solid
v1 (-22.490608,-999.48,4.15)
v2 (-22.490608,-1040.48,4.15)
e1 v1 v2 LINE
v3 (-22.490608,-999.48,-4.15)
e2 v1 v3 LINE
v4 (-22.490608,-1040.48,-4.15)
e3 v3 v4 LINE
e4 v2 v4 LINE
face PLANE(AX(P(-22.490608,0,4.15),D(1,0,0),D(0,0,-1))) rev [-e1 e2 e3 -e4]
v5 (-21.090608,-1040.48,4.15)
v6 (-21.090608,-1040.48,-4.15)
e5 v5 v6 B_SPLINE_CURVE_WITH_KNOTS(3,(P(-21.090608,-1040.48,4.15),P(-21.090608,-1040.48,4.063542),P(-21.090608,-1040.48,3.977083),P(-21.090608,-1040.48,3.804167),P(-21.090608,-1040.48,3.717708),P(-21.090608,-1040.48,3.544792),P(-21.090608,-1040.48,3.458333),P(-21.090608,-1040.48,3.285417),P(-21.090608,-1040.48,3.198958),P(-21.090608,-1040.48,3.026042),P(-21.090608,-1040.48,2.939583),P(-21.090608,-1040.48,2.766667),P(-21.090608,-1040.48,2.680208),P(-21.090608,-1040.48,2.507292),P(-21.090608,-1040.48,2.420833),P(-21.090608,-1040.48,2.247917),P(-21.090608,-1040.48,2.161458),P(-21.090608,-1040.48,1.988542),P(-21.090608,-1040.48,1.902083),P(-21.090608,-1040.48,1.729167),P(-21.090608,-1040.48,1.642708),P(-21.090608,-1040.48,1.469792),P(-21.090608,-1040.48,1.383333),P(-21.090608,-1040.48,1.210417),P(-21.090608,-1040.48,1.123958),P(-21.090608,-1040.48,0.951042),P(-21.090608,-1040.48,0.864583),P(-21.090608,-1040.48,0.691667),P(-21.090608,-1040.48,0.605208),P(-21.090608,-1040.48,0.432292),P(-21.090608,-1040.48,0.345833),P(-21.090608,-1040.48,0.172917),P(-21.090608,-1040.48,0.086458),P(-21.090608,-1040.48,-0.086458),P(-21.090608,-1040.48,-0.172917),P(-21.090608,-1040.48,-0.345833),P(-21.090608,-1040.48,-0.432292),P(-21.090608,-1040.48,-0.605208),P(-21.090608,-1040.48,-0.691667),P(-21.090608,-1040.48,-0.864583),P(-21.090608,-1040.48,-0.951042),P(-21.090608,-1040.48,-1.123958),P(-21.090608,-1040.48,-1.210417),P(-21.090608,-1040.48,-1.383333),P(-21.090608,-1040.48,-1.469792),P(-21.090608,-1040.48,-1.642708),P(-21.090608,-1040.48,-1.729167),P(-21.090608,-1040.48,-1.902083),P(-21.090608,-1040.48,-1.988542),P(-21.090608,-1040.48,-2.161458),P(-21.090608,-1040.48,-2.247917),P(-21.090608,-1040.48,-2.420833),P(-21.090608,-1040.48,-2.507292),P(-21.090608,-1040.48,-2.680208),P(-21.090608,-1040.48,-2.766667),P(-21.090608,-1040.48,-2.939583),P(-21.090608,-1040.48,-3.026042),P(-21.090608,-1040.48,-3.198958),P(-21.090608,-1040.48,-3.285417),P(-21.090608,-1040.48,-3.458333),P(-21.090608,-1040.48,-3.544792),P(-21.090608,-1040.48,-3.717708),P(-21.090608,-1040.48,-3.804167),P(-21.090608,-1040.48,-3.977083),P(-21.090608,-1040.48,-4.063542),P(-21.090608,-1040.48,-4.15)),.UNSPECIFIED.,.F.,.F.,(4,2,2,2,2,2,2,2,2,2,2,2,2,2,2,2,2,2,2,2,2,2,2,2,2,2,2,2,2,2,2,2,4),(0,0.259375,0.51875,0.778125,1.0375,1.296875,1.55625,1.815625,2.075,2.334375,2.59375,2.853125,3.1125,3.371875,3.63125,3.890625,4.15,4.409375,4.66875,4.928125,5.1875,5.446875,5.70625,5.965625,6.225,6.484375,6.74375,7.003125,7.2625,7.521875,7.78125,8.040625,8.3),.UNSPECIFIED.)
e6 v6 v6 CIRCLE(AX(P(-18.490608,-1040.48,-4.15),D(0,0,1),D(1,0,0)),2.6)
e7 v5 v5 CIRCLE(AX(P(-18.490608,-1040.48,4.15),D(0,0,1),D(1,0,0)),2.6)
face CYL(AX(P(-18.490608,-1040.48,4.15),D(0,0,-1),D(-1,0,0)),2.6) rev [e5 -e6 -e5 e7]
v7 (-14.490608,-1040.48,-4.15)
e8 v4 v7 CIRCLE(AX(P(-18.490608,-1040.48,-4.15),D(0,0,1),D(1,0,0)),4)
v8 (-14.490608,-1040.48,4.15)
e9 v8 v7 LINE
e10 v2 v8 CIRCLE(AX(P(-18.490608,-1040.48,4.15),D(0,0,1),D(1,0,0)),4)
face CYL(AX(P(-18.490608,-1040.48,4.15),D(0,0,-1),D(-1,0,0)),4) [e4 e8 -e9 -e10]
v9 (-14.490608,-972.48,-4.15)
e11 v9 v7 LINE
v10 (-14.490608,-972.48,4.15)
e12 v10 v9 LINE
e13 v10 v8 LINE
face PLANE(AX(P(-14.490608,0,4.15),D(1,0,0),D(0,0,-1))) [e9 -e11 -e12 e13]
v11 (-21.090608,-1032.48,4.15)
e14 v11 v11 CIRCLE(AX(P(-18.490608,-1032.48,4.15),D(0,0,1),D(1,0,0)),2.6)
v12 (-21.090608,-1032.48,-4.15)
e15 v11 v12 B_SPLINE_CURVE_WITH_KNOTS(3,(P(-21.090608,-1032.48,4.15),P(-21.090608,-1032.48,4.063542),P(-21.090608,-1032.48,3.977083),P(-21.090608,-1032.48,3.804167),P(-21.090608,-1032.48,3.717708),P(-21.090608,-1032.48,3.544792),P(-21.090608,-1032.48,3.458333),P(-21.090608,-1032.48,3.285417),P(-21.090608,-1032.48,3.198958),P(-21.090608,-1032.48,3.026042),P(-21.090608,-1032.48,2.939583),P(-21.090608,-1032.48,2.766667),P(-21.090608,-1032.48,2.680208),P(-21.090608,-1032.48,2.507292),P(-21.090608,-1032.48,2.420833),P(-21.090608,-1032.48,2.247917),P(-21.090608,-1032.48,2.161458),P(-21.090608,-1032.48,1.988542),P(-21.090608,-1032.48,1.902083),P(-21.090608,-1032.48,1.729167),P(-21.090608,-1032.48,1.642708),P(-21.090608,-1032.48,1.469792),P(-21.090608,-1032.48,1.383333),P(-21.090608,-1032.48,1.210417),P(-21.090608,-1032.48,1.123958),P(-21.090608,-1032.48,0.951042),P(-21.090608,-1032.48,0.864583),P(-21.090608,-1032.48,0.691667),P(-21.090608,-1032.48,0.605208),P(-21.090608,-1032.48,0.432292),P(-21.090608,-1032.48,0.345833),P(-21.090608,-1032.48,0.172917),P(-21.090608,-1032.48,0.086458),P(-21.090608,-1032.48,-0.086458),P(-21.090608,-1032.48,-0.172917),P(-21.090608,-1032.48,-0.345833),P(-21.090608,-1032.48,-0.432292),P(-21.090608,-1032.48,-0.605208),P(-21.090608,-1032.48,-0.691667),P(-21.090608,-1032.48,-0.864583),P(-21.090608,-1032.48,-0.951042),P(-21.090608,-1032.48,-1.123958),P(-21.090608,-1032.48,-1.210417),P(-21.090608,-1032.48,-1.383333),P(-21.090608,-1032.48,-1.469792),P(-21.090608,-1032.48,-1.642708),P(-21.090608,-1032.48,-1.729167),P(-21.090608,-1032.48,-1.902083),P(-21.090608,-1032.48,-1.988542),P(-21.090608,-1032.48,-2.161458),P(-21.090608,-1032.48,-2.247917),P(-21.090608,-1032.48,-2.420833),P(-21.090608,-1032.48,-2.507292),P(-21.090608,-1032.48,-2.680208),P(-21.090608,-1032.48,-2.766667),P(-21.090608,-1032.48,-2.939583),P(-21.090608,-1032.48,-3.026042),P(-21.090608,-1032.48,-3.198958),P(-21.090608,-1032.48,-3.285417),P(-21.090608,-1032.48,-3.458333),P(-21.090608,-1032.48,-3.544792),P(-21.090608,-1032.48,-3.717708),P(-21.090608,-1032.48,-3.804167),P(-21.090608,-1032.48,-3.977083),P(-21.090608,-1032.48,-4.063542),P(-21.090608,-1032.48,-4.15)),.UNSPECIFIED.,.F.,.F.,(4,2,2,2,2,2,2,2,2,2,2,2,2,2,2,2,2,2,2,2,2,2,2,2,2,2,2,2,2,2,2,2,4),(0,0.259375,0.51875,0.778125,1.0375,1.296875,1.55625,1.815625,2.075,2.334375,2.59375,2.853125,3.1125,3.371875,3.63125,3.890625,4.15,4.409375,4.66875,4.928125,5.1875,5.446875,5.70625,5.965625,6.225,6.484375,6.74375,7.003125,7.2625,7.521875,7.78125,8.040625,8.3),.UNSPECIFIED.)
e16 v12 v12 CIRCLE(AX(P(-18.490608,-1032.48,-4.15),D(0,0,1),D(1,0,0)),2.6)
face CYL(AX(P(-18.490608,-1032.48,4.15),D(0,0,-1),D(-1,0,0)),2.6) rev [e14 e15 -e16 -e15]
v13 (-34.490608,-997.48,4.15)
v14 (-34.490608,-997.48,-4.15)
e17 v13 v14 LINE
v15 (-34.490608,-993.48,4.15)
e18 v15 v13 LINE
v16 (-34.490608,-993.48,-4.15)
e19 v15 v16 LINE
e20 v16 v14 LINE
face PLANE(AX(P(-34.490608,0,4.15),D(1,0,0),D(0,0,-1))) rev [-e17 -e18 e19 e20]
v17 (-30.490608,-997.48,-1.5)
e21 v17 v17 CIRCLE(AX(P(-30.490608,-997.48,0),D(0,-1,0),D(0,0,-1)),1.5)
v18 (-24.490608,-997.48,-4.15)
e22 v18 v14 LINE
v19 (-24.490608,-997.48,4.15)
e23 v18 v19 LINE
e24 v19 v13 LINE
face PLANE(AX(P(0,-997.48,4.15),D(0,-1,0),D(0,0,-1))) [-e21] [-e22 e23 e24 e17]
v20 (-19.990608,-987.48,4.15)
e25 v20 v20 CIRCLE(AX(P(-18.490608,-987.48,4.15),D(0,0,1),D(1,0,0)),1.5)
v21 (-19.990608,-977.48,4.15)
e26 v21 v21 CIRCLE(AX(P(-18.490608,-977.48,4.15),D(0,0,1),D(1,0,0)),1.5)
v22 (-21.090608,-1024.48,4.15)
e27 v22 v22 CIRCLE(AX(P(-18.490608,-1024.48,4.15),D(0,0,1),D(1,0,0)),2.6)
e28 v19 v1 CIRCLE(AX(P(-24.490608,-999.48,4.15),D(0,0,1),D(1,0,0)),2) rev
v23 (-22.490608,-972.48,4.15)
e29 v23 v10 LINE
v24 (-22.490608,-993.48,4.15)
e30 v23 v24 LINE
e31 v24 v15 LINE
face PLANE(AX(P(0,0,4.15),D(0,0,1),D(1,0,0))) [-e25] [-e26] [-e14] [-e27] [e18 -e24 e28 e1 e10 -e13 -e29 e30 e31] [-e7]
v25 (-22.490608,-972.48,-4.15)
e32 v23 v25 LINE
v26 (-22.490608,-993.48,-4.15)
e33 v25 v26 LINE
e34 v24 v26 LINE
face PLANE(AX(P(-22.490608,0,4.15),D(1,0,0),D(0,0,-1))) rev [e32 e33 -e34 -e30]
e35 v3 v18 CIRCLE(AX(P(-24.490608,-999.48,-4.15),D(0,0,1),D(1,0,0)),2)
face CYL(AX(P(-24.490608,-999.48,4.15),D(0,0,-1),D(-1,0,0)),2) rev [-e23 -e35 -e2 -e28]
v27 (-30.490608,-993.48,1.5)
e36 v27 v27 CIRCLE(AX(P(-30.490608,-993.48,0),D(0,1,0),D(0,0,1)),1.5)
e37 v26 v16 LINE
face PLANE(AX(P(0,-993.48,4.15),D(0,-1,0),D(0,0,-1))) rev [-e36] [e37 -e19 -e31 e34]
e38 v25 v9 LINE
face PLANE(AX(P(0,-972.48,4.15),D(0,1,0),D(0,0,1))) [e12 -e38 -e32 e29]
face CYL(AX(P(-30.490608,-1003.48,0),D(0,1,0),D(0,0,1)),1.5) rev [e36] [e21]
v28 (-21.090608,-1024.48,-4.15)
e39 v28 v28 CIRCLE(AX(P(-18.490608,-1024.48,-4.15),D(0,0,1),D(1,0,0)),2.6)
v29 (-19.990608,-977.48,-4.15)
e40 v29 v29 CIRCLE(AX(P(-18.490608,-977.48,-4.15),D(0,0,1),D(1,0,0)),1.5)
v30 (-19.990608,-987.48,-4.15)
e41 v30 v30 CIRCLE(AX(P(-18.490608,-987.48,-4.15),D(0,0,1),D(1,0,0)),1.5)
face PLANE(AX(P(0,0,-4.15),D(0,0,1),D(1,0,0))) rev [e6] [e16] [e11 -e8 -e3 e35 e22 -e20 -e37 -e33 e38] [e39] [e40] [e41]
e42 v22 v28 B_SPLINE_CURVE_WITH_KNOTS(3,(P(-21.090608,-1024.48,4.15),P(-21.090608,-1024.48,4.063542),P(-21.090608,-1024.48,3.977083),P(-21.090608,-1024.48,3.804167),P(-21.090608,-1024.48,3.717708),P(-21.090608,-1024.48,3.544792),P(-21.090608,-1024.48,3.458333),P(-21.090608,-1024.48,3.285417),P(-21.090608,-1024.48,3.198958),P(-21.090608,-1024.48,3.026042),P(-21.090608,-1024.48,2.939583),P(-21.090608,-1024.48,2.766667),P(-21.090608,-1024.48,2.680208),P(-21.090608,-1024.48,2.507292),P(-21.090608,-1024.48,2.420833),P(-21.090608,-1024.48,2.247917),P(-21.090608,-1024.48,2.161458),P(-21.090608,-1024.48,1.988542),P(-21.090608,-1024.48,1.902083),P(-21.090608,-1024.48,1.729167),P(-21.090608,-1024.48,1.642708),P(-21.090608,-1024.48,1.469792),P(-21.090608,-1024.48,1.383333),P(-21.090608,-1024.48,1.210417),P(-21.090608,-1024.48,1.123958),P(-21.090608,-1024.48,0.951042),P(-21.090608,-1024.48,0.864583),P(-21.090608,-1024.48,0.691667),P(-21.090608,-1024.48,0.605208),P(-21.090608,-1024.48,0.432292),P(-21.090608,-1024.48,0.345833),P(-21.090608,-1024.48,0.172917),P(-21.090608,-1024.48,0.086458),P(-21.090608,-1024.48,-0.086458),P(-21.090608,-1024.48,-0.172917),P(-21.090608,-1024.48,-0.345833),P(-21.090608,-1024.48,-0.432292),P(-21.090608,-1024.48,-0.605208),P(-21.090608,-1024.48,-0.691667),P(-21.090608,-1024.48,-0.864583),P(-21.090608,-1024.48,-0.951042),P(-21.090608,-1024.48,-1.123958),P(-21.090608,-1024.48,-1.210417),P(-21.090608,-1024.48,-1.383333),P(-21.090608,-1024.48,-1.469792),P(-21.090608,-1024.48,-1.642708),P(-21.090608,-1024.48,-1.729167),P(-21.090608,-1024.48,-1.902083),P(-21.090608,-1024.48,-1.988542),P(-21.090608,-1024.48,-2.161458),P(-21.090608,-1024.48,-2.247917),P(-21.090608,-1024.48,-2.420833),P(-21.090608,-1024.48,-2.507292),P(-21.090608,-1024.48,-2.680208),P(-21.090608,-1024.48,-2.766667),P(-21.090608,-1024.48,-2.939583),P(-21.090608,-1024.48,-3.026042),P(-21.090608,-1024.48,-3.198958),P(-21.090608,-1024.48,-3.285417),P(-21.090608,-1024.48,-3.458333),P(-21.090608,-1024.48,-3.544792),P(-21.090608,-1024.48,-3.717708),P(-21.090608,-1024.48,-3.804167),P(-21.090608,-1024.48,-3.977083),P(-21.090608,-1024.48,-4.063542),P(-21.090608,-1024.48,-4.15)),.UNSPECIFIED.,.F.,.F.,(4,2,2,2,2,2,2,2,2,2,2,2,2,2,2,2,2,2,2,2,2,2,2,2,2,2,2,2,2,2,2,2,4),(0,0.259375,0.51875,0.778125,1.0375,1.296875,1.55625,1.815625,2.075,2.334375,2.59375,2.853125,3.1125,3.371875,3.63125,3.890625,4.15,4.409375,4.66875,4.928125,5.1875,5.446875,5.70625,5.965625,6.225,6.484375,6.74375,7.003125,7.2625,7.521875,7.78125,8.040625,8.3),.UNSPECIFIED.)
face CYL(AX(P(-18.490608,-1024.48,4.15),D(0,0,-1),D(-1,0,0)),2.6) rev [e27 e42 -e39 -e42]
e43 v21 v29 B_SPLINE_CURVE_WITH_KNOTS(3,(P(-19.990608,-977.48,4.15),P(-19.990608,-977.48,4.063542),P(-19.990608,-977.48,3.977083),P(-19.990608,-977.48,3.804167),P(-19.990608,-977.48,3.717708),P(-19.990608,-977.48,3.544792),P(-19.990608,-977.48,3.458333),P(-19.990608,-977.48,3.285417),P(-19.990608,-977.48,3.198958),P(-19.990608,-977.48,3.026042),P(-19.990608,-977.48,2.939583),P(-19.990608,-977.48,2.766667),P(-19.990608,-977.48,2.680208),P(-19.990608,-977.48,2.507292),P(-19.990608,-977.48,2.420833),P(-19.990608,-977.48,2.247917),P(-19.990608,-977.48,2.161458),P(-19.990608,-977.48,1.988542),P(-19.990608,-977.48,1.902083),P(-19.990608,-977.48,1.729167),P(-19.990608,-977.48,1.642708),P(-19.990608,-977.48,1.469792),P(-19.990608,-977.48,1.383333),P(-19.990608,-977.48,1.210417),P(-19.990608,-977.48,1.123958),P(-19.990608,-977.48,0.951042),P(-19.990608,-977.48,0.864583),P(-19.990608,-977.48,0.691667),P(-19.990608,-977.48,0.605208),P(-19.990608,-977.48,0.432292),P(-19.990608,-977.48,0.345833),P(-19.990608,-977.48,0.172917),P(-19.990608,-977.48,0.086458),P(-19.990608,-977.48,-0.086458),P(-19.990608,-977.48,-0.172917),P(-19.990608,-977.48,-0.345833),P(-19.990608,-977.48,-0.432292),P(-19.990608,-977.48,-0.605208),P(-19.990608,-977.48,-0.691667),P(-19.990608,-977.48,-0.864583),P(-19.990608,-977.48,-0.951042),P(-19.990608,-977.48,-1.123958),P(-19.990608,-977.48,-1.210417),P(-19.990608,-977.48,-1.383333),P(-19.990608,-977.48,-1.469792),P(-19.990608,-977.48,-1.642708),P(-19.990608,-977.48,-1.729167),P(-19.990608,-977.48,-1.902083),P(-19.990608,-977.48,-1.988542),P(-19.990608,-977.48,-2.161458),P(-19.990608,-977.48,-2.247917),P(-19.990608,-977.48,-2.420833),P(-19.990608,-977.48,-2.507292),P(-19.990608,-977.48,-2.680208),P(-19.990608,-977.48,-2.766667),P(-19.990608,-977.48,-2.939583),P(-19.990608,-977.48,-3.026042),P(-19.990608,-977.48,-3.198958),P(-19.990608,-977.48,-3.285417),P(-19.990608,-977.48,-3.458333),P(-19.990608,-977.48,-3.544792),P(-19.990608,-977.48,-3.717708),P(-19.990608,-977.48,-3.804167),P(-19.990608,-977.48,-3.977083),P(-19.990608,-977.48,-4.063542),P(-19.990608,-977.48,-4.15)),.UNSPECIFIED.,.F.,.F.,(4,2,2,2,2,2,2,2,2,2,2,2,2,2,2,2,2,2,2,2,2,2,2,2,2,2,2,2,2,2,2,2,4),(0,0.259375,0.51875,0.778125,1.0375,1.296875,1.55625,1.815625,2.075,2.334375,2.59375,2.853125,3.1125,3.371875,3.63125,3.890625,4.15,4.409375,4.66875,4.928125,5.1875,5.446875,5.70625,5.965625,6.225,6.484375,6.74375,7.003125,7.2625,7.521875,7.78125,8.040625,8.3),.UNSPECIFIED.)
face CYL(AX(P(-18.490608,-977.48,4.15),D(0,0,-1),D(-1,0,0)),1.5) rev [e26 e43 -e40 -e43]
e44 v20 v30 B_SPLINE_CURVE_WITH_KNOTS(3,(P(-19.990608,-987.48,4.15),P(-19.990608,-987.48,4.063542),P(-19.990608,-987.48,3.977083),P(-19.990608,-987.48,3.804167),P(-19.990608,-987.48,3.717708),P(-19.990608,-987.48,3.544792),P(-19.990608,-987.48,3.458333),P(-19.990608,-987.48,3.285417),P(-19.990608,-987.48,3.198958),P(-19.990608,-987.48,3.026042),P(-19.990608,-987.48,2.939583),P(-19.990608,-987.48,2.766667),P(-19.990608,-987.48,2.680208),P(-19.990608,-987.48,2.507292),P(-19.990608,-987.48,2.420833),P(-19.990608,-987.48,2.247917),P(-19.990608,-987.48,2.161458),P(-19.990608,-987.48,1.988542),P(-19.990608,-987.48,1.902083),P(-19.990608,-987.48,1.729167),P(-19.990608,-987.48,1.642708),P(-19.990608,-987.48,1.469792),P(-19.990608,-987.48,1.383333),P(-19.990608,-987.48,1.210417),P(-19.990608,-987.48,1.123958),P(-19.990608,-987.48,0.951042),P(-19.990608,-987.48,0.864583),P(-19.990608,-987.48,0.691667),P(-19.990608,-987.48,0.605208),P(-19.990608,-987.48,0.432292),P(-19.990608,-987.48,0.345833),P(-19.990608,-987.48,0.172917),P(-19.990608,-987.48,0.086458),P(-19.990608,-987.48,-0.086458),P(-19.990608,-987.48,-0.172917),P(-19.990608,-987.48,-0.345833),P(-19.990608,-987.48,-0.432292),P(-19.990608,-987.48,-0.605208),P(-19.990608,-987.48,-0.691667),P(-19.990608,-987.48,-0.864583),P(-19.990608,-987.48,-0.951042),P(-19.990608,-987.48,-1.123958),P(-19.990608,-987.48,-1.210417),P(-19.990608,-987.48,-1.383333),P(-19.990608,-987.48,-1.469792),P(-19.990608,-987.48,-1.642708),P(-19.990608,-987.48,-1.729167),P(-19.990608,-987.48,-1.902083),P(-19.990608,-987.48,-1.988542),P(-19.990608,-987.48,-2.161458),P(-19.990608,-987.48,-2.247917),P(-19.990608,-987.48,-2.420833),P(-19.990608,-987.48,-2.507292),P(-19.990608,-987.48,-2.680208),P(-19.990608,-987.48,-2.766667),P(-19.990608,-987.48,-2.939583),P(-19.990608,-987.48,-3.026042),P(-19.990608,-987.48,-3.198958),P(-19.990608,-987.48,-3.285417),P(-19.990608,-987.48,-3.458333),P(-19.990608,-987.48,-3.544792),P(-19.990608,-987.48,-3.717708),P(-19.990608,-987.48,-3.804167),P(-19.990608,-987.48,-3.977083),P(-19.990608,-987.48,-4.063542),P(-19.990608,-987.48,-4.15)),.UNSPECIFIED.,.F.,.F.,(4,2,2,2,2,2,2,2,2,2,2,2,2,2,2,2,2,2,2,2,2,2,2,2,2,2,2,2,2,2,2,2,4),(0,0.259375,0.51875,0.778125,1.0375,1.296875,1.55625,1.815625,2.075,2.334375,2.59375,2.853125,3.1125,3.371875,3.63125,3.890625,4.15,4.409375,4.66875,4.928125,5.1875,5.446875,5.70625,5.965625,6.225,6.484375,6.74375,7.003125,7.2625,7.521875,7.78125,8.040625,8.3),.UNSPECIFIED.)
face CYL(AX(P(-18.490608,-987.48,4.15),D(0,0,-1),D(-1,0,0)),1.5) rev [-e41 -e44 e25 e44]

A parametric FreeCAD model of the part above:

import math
import FreeCAD as App
import Part
import Sketcher

V = App.Vector


def edges_at(feature, points):
    """Names of the edges that pass closest to the given points."""
    edges = feature.Shape.Edges
    near = lambda p: min(range(len(edges)), key=lambda i: edges[i].distToShape(Part.Vertex(*p))[0])
    return sorted({f"Edge{near(p) + 1}" for p in points})

doc = App.newDocument("Part")
body = doc.addObject("PartDesign::Body", "Body")

sketch1 = doc.addObject("Sketcher::SketchObject", "Sketch")
body.addObject(sketch1)
sketch1.AttachmentSupport = (doc.XY_Plane, [""])
sketch1.MapMode = "FlatFace"
sketch1.addGeometry([
    Part.LineSegment(V(-14.5, -1040.5, 0), V(-14.5, -972.5, 0)),
    Part.LineSegment(V(-14.5, -972.5, 0), V(-22.5, -972.5, 0)),
    Part.LineSegment(V(-22.5, -972.5, 0), V(-22.5, -993.5, 0)),
    Part.LineSegment(V(-22.5, -993.5, 0), V(-34.5, -993.5, 0)),
    Part.LineSegment(V(-34.5, -993.5, 0), V(-34.5, -997.5, 0)),
    Part.LineSegment(V(-34.5, -997.5, 0), V(-22.5, -997.5, 0)),
    Part.LineSegment(V(-22.5, -997.5, 0), V(-22.5, -1040.5, 0)),
    Part.ArcOfCircle(Part.Circle(V(-18.5, -1040.5, 0), V(0, 0, 1), 4), math.radians(180), math.radians(360)),
    Part.Circle(V(-18.5, -1040.5, 0), V(0, 0, 1), 2.6),
    Part.Circle(V(-18.5, -1032.5, 0), V(0, 0, 1), 2.6),
    Part.Circle(V(-18.5, -1024.5, 0), V(0, 0, 1), 2.6),
    Part.Circle(V(-18.5, -987.5, 0), V(0, 0, 1), 1.5),
    Part.Circle(V(-18.5, -977.5, 0), V(0, 0, 1), 1.5),
], False)
sketch1.addConstraint([
    Sketcher.Constraint("Coincident", 0, 2, 1, 1),
    Sketcher.Constraint("Coincident", 1, 2, 2, 1),
    Sketcher.Constraint("Coincident", 2, 2, 3, 1),
    Sketcher.Constraint("Coincident", 3, 2, 4, 1),
    Sketcher.Constraint("Coincident", 4, 2, 5, 1),
    Sketcher.Constraint("Coincident", 5, 2, 6, 1),
    Sketcher.Constraint("Tangent", 6, 2, 7, 1),
    Sketcher.Constraint("Tangent", 7, 2, 0, 1),
    Sketcher.Constraint("Vertical", 0),
    Sketcher.Constraint("Horizontal", 1),
    Sketcher.Constraint("Vertical", 2),
    Sketcher.Constraint("Horizontal", 3),
    Sketcher.Constraint("Vertical", 4),
    Sketcher.Constraint("Horizontal", 5),
    Sketcher.Constraint("Vertical", 6),
    Sketcher.Constraint("Coincident", 8, 3, 7, 3),
    Sketcher.Constraint("Equal", 8, 9),
    Sketcher.Constraint("Equal", 9, 10),
    Sketcher.Constraint("Equal", 11, 12),
    Sketcher.Constraint("Vertical", 8, 3, 9, 3),
    Sketcher.Constraint("Vertical", 9, 3, 10, 3),
    Sketcher.Constraint("Vertical", 10, 3, 11, 3),
    Sketcher.Constraint("Vertical", 11, 3, 12, 3),
    Sketcher.Constraint("Vertical", 2, 2, 5, 2),
    Sketcher.Constraint("Diameter", 11, 3.0),
    Sketcher.Constraint("Radius", 7, 4.0),
    Sketcher.Constraint("Diameter", 8, 5.2),
    Sketcher.Constraint("DistanceX", 3, 2, 3, 1, 12.0),
    Sketcher.Constraint("DistanceY", 0, 1, 0, 2, 68.0),
    Sketcher.Constraint("DistanceY", 2, 2, 2, 1, 21.0),
    Sketcher.Constraint("DistanceY", 4, 2, 4, 1, 4.0),
    Sketcher.Constraint("DistanceY", 7, 3, 9, 3, 8.0),
    Sketcher.Constraint("DistanceY", 9, 3, 10, 3, 8.0),
    Sketcher.Constraint("DistanceY", 10, 3, 11, 3, 37.0),
    Sketcher.Constraint("DistanceY", 11, 3, 12, 3, 10.0),
    Sketcher.Constraint("DistanceY", 7, 3, -1, 1, 1040.48),
    Sketcher.Constraint("DistanceX", 7, 3, -1, 1, 18.490608),
])
pad1 = doc.addObject("PartDesign::Pad", "Pad")
body.addObject(pad1)
pad1.Profile = sketch1
pad1.Length = 8.3
pad1.Midplane = True

sketch2 = doc.addObject("Sketcher::SketchObject", "Sketch001")
body.addObject(sketch2)
sketch2.AttachmentSupport = (doc.XZ_Plane, [""])
sketch2.MapMode = "FlatFace"
sketch2.AttachmentOffset = App.Placement(V(0, 0, 993.48), App.Rotation())
sketch2.addGeometry(Part.Circle(V(-30.5, 0, 0), V(0, 0, 1), 1.5), False)
sketch2.addConstraint([
    Sketcher.Constraint("PointOnObject", 0, 3, -1),
    Sketcher.Constraint("Diameter", 0, 3.0),
    Sketcher.Constraint("DistanceX", 0, 3, -1, 1, 30.490608),
])
pocket1 = doc.addObject("PartDesign::Pocket", "Pocket")
body.addObject(pocket1)
pocket1.Profile = sketch2
pocket1.Length = 10
pocket1.Reversed = True
doc.recompute()

fillet = doc.addObject("PartDesign::Fillet", "Fillet")
body.addObject(fillet)
fillet.Base = (pocket1, edges_at(pocket1, [(-22.491, -997.48, 0)]))
fillet.Radius = 2

doc.recompute()
